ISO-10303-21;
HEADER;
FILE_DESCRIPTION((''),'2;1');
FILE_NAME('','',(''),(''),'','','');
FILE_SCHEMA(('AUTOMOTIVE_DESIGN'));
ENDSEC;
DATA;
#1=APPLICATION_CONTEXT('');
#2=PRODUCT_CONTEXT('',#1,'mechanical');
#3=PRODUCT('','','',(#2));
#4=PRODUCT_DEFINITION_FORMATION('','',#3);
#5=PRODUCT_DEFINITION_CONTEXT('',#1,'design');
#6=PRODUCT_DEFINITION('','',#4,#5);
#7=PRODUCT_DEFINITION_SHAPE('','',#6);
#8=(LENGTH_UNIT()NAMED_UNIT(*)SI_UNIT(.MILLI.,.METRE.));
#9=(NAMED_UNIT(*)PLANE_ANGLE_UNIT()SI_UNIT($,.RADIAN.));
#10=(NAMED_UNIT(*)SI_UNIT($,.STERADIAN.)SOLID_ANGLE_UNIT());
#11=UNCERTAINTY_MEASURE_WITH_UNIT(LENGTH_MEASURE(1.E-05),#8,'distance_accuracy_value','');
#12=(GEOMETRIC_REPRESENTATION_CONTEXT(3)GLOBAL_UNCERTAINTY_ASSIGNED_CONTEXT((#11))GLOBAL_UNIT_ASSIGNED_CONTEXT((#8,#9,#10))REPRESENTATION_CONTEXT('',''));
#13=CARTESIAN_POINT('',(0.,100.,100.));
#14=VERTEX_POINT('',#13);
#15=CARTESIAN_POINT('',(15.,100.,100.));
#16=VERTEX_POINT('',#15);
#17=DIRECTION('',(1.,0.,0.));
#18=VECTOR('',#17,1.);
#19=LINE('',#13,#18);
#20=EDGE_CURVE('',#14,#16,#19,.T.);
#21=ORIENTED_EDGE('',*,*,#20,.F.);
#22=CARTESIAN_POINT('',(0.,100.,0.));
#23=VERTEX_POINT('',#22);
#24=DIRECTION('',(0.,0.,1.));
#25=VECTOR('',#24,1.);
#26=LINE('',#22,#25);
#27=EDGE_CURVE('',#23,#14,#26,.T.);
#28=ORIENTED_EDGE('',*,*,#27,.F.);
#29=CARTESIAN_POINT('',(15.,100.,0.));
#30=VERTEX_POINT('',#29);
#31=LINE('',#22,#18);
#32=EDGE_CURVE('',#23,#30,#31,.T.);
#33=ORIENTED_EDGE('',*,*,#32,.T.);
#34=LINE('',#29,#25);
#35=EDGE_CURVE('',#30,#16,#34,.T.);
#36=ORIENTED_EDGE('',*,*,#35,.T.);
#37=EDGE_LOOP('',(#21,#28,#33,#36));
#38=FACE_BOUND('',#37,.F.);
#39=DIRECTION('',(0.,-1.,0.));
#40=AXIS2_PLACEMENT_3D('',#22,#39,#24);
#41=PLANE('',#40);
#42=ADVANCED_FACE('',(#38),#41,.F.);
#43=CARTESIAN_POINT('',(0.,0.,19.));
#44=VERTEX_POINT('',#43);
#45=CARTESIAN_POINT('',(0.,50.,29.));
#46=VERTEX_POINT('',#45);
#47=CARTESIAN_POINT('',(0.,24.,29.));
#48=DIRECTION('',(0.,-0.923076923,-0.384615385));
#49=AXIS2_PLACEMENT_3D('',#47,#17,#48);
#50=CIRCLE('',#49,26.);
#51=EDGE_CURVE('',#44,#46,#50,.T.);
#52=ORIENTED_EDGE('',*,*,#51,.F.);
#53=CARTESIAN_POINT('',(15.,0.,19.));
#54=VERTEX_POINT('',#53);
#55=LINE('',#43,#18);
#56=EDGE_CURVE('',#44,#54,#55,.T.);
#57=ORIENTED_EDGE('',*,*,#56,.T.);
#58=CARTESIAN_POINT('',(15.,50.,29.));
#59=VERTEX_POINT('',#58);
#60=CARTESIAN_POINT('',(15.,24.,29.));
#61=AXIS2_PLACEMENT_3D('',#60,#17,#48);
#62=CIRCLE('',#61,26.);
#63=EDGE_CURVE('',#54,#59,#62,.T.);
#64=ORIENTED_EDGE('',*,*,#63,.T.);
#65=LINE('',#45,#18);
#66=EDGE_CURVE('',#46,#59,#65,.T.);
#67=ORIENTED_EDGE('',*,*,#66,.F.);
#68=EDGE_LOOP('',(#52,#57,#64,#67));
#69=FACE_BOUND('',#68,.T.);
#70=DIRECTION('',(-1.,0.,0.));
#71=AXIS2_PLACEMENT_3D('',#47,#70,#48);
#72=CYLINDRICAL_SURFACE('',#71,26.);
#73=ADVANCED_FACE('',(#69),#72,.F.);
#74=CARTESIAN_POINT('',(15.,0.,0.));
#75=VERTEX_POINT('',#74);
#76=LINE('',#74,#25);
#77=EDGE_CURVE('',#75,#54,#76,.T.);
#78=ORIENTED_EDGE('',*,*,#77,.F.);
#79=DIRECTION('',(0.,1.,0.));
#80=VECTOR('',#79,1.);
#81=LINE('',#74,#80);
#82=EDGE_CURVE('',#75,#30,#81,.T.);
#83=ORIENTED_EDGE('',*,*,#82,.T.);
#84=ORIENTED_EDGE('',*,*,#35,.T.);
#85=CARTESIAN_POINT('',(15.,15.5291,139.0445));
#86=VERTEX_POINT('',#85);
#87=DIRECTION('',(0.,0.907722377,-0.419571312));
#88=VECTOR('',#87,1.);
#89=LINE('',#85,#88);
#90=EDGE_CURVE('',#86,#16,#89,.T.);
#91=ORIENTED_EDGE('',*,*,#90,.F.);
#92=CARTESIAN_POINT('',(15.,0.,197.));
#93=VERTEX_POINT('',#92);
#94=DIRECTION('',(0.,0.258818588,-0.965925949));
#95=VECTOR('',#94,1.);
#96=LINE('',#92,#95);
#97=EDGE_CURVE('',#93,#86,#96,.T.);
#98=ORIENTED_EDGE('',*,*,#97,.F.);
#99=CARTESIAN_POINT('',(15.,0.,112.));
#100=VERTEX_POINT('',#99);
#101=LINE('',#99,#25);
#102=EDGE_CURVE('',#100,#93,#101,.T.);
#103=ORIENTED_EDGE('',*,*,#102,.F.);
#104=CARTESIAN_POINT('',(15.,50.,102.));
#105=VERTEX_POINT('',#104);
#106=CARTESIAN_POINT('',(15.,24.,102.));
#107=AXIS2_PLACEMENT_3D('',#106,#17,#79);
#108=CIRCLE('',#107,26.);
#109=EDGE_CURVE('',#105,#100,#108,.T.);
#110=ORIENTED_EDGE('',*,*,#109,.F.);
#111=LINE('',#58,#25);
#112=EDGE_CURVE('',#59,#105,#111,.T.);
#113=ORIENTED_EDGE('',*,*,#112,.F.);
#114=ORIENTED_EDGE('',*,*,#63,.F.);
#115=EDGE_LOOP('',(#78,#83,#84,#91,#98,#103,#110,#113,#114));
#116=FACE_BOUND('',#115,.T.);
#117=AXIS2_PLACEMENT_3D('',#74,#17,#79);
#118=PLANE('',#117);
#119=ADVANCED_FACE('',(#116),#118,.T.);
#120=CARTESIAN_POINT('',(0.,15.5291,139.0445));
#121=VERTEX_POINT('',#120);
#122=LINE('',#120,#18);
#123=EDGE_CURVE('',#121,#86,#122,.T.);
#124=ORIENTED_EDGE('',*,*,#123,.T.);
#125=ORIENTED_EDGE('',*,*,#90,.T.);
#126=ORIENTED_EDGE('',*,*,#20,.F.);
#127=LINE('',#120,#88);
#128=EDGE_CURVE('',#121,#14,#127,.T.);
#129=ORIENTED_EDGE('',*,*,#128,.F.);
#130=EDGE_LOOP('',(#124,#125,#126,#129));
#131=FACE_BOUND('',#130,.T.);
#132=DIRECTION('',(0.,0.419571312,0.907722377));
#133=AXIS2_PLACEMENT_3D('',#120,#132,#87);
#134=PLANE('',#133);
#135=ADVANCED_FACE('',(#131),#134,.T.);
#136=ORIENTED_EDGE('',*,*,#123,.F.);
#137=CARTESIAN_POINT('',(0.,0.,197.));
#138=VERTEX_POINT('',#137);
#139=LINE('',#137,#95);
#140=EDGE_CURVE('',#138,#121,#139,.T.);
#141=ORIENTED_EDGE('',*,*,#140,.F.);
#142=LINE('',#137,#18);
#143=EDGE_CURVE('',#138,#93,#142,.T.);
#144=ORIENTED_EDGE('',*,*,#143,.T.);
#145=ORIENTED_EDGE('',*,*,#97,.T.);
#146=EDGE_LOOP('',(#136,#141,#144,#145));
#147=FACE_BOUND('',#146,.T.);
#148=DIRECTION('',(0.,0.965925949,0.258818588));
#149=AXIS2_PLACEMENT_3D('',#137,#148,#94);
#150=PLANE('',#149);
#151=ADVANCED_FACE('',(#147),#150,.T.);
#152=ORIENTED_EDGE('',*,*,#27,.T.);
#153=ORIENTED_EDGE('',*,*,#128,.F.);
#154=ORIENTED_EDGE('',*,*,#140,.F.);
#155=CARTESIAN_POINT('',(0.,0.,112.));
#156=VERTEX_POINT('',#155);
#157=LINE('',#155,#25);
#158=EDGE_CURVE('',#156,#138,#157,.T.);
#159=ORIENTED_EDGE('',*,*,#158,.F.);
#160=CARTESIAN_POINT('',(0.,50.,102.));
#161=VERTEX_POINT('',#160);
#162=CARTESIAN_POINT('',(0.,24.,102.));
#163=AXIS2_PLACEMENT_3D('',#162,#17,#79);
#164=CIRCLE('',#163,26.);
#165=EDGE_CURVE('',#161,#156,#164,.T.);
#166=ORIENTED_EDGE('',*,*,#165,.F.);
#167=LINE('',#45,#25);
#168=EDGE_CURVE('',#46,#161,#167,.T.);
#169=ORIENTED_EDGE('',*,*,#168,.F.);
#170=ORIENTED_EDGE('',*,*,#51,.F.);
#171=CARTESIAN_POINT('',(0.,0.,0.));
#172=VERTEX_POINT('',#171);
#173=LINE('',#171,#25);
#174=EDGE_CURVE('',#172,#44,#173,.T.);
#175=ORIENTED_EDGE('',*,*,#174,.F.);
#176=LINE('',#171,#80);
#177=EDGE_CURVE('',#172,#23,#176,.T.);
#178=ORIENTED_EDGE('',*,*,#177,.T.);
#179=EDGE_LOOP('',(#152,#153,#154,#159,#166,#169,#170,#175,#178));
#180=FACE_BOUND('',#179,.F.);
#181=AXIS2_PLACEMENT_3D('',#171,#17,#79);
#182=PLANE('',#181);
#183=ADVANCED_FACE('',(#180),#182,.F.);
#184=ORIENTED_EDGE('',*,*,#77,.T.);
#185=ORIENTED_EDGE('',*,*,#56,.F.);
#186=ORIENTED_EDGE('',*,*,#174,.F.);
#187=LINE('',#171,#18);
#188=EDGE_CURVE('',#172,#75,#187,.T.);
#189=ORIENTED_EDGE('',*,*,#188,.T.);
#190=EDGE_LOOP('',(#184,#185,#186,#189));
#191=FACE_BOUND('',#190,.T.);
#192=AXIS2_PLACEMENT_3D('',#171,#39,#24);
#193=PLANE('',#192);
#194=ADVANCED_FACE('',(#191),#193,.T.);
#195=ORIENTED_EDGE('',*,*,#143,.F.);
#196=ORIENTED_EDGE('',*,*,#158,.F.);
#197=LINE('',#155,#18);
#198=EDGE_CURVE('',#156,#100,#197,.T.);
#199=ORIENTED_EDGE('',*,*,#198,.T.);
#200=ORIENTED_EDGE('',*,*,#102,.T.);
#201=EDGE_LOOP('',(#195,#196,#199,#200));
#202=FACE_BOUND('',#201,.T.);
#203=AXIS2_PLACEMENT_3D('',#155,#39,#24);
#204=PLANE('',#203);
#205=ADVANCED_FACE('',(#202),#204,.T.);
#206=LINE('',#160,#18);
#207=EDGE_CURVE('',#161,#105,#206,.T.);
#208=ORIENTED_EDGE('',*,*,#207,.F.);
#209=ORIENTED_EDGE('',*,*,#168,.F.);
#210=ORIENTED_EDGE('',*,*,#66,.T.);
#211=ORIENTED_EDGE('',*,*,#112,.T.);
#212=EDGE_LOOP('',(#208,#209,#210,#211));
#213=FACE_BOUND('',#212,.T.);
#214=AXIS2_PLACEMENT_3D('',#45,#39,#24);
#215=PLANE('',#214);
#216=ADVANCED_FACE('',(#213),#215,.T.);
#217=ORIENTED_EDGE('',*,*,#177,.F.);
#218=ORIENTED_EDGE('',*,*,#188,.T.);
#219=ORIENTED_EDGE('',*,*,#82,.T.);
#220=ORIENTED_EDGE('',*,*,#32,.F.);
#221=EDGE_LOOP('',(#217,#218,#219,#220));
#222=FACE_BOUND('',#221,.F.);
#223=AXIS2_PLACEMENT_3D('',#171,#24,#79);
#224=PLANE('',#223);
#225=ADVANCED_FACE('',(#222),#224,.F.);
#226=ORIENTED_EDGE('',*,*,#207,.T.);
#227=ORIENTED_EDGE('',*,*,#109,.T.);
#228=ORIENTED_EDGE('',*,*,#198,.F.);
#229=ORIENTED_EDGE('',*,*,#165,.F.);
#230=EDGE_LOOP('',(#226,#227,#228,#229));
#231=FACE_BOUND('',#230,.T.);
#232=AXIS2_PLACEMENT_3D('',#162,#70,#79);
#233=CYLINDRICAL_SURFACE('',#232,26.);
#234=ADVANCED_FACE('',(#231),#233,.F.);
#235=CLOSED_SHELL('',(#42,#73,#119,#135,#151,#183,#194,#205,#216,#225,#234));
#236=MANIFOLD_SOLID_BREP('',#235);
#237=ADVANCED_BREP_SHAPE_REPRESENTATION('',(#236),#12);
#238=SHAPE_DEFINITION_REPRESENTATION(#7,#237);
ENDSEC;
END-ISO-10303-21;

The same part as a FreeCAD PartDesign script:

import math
import FreeCAD as App
import Part
import Sketcher
from FreeCAD import Vector
Q = App.Units.Quantity

doc = App.newDocument("Part")
body = doc.addObject("PartDesign::Body", "Body")

sketch1 = doc.addObject("Sketcher::SketchObject", "Sketch")
body.addObject(sketch1)
sketch1.AttachmentSupport = (doc.YZ_Plane, [""])
sketch1.MapMode = "FlatFace"
sketch1.addGeometry(Part.LineSegment(Vector(0, 19, 0), Vector(0, 0, 0)), False)
sketch1.addGeometry(Part.LineSegment(Vector(0, 0, 0), Vector(100, 0, 0)), False)
sketch1.addGeometry(Part.LineSegment(Vector(100, 0, 0), Vector(100, 100, 0)), False)
sketch1.addGeometry(Part.LineSegment(Vector(100, 100, 0), Vector(15.5291, 139.0445, 0)), False)
sketch1.addGeometry(Part.LineSegment(Vector(15.5291, 139.0445, 0), Vector(0, 197, 0)), False)
sketch1.addGeometry(Part.LineSegment(Vector(0, 197, 0), Vector(0, 112, 0)), False)
sketch1.addGeometry(Part.ArcOfCircle(Part.Circle(Vector(24, 102, 0), Vector(0, 0, 1), 26), math.radians(0), math.radians(157.380135)), False)
sketch1.addGeometry(Part.LineSegment(Vector(50, 102, 0), Vector(50, 29, 0)), False)
sketch1.addGeometry(Part.ArcOfCircle(Part.Circle(Vector(24, 29, 0), Vector(0, 0, 1), 26), math.radians(-157.380135), math.radians(0)), False)
sketch1.addConstraint(Sketcher.Constraint("Coincident", 0, 2, 1, 1))
sketch1.addConstraint(Sketcher.Constraint("Coincident", 1, 2, 2, 1))
sketch1.addConstraint(Sketcher.Constraint("Coincident", 2, 2, 3, 1))
sketch1.addConstraint(Sketcher.Constraint("Coincident", 3, 2, 4, 1))
sketch1.addConstraint(Sketcher.Constraint("Coincident", 4, 2, 5, 1))
sketch1.addConstraint(Sketcher.Constraint("Coincident", 5, 2, 6, 2))
sketch1.addConstraint(Sketcher.Constraint("Tangent", 6, 1, 7, 1))
sketch1.addConstraint(Sketcher.Constraint("Tangent", 7, 2, 8, 2))
sketch1.addConstraint(Sketcher.Constraint("Coincident", 8, 1, 0, 1))
sketch1.addConstraint(Sketcher.Constraint("Vertical", 0))
sketch1.addConstraint(Sketcher.Constraint("Horizontal", 1))
sketch1.addConstraint(Sketcher.Constraint("Vertical", 2))
sketch1.addConstraint(Sketcher.Constraint("Vertical", 5))
sketch1.addConstraint(Sketcher.Constraint("Vertical", 7))
sketch1.addConstraint(Sketcher.Constraint("Coincident", 0, 2, -1, 1))
sketch1.addConstraint(Sketcher.Constraint("Equal", 6, 8))
sketch1.addConstraint(Sketcher.Constraint("PointOnObject", 4, 2, -2))
sketch1.addConstraint(Sketcher.Constraint("Equal", 1, 2))
sketch1.addConstraint(Sketcher.Constraint("Radius", 6, Q("26 mm")))
sketch1.addConstraint(Sketcher.Constraint("DistanceX", 1, 1, 1, 2, Q("100 mm")))
sketch1.addConstraint(Sketcher.Constraint("DistanceY", 7, 2, 7, 1, Q("73 mm")))
sketch1.addConstraint(Sketcher.Constraint("Distance", 4, Q("60 mm")))
sketch1.addConstraint(Sketcher.Constraint("DistanceX", -1, 1, 6, 3, Q("24 mm")))
sketch1.addConstraint(Sketcher.Constraint("DistanceY", -1, 1, 8, 3, Q("29 mm")))
sketch1.addConstraint(Sketcher.Constraint("DistanceY", -1, 1, 4, 2, Q("197 mm")))
sketch1.addConstraint(Sketcher.Constraint("Angle", 4, Q("105 deg")))
pad1 = doc.addObject("PartDesign::Pad", "Pad")
body.addObject(pad1)
pad1.Profile = sketch1
pad1.Length = 15

doc.recompute()
